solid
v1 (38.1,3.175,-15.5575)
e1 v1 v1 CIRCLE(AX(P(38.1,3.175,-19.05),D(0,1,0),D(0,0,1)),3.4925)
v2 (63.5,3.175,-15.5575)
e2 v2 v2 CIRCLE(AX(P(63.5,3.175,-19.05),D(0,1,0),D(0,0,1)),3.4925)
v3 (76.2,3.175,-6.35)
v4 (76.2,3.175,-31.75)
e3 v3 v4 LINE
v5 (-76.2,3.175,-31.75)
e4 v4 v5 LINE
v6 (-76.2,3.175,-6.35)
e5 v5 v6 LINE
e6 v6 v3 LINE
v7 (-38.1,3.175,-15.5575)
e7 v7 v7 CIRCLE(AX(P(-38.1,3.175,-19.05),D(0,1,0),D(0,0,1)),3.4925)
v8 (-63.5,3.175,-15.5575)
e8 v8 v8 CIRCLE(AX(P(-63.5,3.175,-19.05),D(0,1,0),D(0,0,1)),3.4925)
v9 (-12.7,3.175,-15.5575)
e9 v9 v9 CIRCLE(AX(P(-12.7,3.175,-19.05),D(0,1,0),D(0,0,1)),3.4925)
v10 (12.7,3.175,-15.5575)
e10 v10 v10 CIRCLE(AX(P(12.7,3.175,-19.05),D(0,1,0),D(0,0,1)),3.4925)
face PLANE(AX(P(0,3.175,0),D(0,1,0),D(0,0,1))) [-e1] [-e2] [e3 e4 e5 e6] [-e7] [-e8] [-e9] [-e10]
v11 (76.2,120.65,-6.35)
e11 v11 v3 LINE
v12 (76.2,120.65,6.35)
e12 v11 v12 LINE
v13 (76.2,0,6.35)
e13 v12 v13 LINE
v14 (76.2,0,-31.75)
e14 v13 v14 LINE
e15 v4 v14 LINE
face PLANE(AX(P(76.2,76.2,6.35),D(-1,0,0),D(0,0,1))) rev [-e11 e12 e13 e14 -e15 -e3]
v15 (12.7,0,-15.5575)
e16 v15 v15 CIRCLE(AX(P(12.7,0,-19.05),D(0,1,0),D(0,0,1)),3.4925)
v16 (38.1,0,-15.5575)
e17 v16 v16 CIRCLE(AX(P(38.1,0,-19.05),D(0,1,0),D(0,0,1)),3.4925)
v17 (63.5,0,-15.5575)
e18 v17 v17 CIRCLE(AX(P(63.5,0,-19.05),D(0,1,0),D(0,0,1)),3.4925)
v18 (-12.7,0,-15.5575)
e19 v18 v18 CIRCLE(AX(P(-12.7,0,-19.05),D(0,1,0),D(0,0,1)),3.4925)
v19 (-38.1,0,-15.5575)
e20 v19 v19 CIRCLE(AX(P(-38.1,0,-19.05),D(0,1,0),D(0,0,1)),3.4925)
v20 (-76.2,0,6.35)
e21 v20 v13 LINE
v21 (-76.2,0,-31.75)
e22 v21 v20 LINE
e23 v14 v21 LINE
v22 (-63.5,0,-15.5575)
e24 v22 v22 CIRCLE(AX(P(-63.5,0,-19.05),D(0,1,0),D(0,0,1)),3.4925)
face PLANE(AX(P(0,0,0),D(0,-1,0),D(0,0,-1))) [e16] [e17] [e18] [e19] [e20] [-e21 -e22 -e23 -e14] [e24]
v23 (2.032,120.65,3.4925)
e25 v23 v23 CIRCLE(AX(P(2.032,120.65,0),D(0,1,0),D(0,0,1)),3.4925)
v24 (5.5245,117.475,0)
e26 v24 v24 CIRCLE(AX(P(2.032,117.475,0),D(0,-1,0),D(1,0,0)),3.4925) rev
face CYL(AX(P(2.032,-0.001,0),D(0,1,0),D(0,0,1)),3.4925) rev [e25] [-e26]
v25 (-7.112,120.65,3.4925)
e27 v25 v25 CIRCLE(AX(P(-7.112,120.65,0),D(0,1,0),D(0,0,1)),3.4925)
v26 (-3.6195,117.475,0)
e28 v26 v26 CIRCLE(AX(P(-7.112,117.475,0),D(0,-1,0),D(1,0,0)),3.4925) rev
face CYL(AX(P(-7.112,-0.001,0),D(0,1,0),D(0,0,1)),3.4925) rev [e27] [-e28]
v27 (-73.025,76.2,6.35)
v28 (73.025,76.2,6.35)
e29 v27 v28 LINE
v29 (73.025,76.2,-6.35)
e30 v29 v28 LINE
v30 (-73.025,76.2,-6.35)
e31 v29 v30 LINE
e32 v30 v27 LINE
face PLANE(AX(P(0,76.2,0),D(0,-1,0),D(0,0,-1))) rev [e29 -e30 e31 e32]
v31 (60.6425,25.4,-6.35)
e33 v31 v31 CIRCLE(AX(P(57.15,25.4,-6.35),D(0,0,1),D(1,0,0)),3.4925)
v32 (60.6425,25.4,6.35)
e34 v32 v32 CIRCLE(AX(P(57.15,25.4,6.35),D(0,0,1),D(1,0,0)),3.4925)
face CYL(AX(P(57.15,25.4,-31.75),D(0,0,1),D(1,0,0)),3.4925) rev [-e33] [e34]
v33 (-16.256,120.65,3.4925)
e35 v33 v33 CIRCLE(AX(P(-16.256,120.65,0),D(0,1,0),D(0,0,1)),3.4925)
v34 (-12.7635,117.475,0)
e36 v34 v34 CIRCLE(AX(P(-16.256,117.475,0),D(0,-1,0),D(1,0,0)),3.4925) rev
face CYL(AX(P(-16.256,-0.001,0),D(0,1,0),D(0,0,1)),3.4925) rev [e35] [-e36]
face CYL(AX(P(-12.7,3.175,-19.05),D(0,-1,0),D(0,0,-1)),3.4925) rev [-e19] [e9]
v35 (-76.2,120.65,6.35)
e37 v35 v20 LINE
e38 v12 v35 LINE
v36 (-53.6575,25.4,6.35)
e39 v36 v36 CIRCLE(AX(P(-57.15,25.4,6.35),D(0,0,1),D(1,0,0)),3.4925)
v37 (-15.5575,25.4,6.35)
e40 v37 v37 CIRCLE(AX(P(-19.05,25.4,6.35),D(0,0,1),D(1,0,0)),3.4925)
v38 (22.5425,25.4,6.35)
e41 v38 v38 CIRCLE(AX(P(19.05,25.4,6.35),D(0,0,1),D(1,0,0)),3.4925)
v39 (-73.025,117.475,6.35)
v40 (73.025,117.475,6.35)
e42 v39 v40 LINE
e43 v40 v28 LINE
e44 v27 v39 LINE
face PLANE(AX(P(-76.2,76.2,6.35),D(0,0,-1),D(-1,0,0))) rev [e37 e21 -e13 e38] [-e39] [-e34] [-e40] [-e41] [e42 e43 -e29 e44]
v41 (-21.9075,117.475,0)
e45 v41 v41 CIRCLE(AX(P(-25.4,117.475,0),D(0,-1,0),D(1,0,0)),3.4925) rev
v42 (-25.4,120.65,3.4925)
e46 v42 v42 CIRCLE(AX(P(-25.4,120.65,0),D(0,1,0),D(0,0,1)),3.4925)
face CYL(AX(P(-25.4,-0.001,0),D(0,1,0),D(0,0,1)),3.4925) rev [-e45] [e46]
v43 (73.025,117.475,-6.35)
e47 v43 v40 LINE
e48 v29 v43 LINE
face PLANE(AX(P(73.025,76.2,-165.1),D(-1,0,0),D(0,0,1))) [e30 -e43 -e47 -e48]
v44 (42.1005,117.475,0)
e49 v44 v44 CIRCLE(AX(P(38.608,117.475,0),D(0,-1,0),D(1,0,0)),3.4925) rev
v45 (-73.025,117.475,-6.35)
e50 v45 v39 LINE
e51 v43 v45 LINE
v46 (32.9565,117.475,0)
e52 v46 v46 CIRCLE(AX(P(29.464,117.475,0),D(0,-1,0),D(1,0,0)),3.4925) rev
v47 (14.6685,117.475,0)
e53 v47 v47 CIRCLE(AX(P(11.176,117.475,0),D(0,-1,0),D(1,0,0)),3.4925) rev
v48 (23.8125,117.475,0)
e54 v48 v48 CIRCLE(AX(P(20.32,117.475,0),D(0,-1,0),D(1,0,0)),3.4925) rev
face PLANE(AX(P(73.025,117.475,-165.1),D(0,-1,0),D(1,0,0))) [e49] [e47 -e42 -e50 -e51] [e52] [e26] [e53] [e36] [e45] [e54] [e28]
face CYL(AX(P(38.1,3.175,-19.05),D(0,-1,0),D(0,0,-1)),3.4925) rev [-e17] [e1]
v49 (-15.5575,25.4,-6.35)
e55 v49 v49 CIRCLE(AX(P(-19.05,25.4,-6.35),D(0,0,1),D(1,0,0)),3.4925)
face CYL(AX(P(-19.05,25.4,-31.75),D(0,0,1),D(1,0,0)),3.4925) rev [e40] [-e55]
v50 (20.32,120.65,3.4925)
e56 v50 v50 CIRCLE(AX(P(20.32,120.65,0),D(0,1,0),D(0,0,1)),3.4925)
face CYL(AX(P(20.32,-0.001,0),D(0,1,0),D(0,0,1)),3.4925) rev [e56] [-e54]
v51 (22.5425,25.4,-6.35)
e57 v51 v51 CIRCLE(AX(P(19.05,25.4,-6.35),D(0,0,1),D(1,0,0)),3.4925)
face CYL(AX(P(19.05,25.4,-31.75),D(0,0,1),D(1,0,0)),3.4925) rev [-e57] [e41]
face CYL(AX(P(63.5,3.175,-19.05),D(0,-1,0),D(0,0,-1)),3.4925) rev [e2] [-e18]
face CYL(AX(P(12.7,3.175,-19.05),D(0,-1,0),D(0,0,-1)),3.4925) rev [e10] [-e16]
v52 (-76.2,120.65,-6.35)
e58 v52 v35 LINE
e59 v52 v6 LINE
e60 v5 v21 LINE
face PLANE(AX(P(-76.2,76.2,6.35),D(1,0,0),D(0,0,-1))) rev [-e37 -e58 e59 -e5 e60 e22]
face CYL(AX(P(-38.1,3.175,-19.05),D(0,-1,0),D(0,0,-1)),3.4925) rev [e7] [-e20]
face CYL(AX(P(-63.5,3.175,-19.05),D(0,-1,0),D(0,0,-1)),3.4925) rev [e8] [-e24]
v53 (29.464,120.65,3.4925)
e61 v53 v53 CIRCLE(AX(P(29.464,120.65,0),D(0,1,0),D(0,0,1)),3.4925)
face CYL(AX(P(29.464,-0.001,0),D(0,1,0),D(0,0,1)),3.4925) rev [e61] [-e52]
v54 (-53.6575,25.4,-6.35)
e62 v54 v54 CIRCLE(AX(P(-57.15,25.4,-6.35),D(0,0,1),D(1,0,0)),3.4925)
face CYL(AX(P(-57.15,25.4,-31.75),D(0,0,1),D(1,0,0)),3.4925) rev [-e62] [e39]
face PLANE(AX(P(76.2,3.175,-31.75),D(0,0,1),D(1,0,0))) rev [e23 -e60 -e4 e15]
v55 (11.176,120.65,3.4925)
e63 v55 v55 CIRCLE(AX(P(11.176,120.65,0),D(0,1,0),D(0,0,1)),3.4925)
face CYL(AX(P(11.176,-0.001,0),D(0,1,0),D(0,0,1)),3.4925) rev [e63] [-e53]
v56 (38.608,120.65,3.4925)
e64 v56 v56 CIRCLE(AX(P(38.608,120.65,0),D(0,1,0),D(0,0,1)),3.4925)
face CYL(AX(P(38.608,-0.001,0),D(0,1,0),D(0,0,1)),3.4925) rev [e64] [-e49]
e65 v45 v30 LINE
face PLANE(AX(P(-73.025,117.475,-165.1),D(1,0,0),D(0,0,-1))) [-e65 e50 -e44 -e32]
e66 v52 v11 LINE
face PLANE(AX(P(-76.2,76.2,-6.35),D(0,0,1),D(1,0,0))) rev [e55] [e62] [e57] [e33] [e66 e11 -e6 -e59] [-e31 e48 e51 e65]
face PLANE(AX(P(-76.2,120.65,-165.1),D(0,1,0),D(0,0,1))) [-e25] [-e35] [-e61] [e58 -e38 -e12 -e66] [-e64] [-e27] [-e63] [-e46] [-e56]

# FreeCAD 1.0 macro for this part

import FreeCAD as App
import Part
import Sketcher

V = App.Vector
Q = App.Units.Quantity


def add_polygon(sketch, points):
    """Adds a closed chain of lines whose ends are joined by coincident constraints."""
    first, n = sketch.GeometryCount, len(points)
    for a, b in zip(points, points[1:] + points[:1]):
        sketch.addGeometry(Part.LineSegment(App.Vector(*a, 0), App.Vector(*b, 0)), False)
    for i in range(n):
        sketch.addConstraint(Sketcher.Constraint("Coincident", first + i, 2, first + (i + 1) % n, 1))

doc = App.newDocument("Part")
body = doc.addObject("PartDesign::Body", "Body")

# Sketch on XZ plane
sketch1 = body.newObject("Sketcher::SketchObject", "Sketch")
sketch1.AttachmentSupport = (doc.getObject("XZ_Plane"), [""])
sketch1.MapMode = "FlatFace"
add_polygon(sketch1, [(-76, -6), (-76, 6), (76, 6), (76, -6)])  # lines 0-3
sketch1.addConstraint(Sketcher.Constraint("Vertical", 0))
sketch1.addConstraint(Sketcher.Constraint("Horizontal", 1))
sketch1.addConstraint(Sketcher.Constraint("Vertical", 2))
sketch1.addConstraint(Sketcher.Constraint("Horizontal", 3))
sketch1.addConstraint(Sketcher.Constraint("Symmetric", 0, 2, 2, 2, -1, 1))
sketch1.addConstraint(Sketcher.Constraint("DistanceX", 1, 1, 1, 2, Q("6 in")))
sketch1.addConstraint(Sketcher.Constraint("DistanceY", 0, 1, 0, 2, Q("0.5 in")))
pad1 = body.newObject("PartDesign::Pad", "Pad")
pad1.Profile = sketch1
pad1.Length = Q("3 in")
pad1.Reversed = True

# Sketch on XZ plane
sketch2 = body.newObject("Sketcher::SketchObject", "Sketch001")
sketch2.AttachmentSupport = (doc.getObject("XZ_Plane"), [""])
sketch2.MapMode = "FlatFace"
add_polygon(sketch2, [(-76.2, -6.3), (76.2, -6.3), (76.2, -31.8), (-76.2, -31.8)])  # lines 0-3
sketch2.addGeometry(Part.Circle(V(-63.5, -19.1, 0), V(0, 0, 1), 3.5), False)  # 4
sketch2.addGeometry(Part.Circle(V(-38.1, -19.1, 0), V(0, 0, 1), 3.5), False)  # 5
sketch2.addGeometry(Part.Circle(V(-12.7, -19.1, 0), V(0, 0, 1), 3.5), False)  # 6
sketch2.addGeometry(Part.Circle(V(12.7, -19.1, 0), V(0, 0, 1), 3.5), False)  # 7
sketch2.addGeometry(Part.Circle(V(38.1, -19.1, 0), V(0, 0, 1), 3.5), False)  # 8
sketch2.addGeometry(Part.Circle(V(63.5, -19.1, 0), V(0, 0, 1), 3.5), False)  # 9
sketch2.addConstraint(Sketcher.Constraint("Horizontal", 0))
sketch2.addConstraint(Sketcher.Constraint("Vertical", 1))
sketch2.addConstraint(Sketcher.Constraint("Horizontal", 2))
sketch2.addConstraint(Sketcher.Constraint("Vertical", 3))
sketch2.addConstraint(Sketcher.Constraint("Equal", 4, 5))
sketch2.addConstraint(Sketcher.Constraint("Equal", 5, 6))
sketch2.addConstraint(Sketcher.Constraint("Equal", 6, 7))
sketch2.addConstraint(Sketcher.Constraint("Equal", 7, 8))
sketch2.addConstraint(Sketcher.Constraint("Equal", 8, 9))
sketch2.addConstraint(Sketcher.Constraint("Symmetric", 6, 3, 7, 3, -2))
sketch2.addConstraint(Sketcher.Constraint("Symmetric", 5, 3, 8, 3, -2))
sketch2.addConstraint(Sketcher.Constraint("Symmetric", 4, 3, 9, 3, -2))
sketch2.addConstraint(Sketcher.Constraint("Horizontal", 4, 3, 5, 3))
sketch2.addConstraint(Sketcher.Constraint("Horizontal", 5, 3, 6, 3))
sketch2.addConstraint(Sketcher.Constraint("DistanceX", 0, 1, 0, 2, Q("6 in")))
sketch2.addConstraint(Sketcher.Constraint("DistanceY", 1, 2, 1, 1, Q("1 in")))
sketch2.addConstraint(Sketcher.Constraint("Diameter", 4, Q("0.275 in")))
sketch2.addConstraint(Sketcher.Constraint("DistanceX", -1, 1, 0, 2, Q("3 in")))
sketch2.addConstraint(Sketcher.Constraint("DistanceX", 4, 3, 5, 3, Q("1 in")))
sketch2.addConstraint(Sketcher.Constraint("DistanceX", 5, 3, 6, 3, Q("1 in")))
sketch2.addConstraint(Sketcher.Constraint("DistanceX", 6, 3, 7, 3, Q("1 in")))
sketch2.addConstraint(Sketcher.Constraint("DistanceY", 9, 3, 0, 2, Q("0.5 in")))
sketch2.addConstraint(Sketcher.Constraint("DistanceY", 4, 3, -1, 1, Q("0.75 in")))
pad2 = body.newObject("PartDesign::Pad", "Pad001")
pad2.Profile = sketch2
pad2.Length = Q("0.125 in")
pad2.Reversed = True

# Sketch on XY plane
sketch3 = body.newObject("Sketcher::SketchObject", "Sketch002")
sketch3.AttachmentSupport = (doc.getObject("XY_Plane"), [""])
sketch3.MapMode = "FlatFace"
sketch3.AttachmentOffset = App.Placement(V(0, 0, 0.25 * 25.4), App.Rotation())
add_polygon(sketch3, [(-76.2, 120.7), (-76.2, 76.2), (-73, 76.2), (-73, 117.5), (73, 117.5), (73, 76.2), (76.2, 76.2), (76.2, 120.7)])  # lines 0-7
sketch3.addConstraint(Sketcher.Constraint("Vertical", 0))
sketch3.addConstraint(Sketcher.Constraint("Horizontal", 1))
sketch3.addConstraint(Sketcher.Constraint("Vertical", 2))
sketch3.addConstraint(Sketcher.Constraint("Horizontal", 3))
sketch3.addConstraint(Sketcher.Constraint("Vertical", 4))
sketch3.addConstraint(Sketcher.Constraint("Horizontal", 5))
sketch3.addConstraint(Sketcher.Constraint("Vertical", 6))
sketch3.addConstraint(Sketcher.Constraint("Horizontal", 7))
sketch3.addConstraint(Sketcher.Constraint("Symmetric", 1, 2, 4, 2, -2))
sketch3.addConstraint(Sketcher.Constraint("Equal", 1, 5))
sketch3.addConstraint(Sketcher.Constraint("DistanceX", 7, 2, 7, 1, Q("6 in")))
sketch3.addConstraint(Sketcher.Constraint("DistanceY", -1, 1, 0, 2, Q("3 in")))
sketch3.addConstraint(Sketcher.Constraint("DistanceX", 3, 1, 3, 2, Q("5.75 in")))
sketch3.addConstraint(Sketcher.Constraint("DistanceY", 0, 2, 0, 1, Q("1.75 in")))
sketch3.addConstraint(Sketcher.Constraint("DistanceY", 2, 1, 2, 2, Q("1.625 in")))
pad3 = body.newObject("PartDesign::Pad", "Pad002")
pad3.Profile = sketch3
pad3.Length = Q("0.5 in")
pad3.Reversed = True

# Sketch on XZ plane
sketch4 = body.newObject("Sketcher::SketchObject", "Sketch003")
sketch4.AttachmentSupport = (doc.getObject("XZ_Plane"), [""])
sketch4.MapMode = "FlatFace"
sketch4.AttachmentOffset = App.Placement(V(0, 0, -4.75 * 25.4), App.Rotation())
sketch4.addGeometry(Part.Circle(V(-25.4, 0, 0), V(0, 0, 1), 3.5), False)
sketch4.addConstraint(Sketcher.Constraint("PointOnObject", 0, 3, -1))
sketch4.addConstraint(Sketcher.Constraint("Diameter", 0, Q("0.275 in")))
sketch4.addConstraint(Sketcher.Constraint("DistanceX", 0, 3, -1, 1, Q("1 in")))
pocket1 = body.newObject("PartDesign::Pocket", "Pocket")
pocket1.Profile = sketch4
pocket1.Type = "UpToFirst"
pocket1.Reversed = True

# Sketch on XZ plane
sketch5 = body.newObject("Sketcher::SketchObject", "Sketch004")
sketch5.AttachmentSupport = (doc.getObject("XZ_Plane"), [""])
sketch5.MapMode = "FlatFace"
sketch5.AttachmentOffset = App.Placement(V(0, 0, -4.75 * 25.4), App.Rotation())
sketch5.addGeometry(Part.Circle(V(-16.3, 0, 0), V(0, 0, 1), 3.5), False)
sketch5.addConstraint(Sketcher.Constraint("PointOnObject", 0, 3, -1))
sketch5.addConstraint(Sketcher.Constraint("Diameter", 0, Q("0.275 in")))
sketch5.addConstraint(Sketcher.Constraint("DistanceX", 0, 3, -1, 1, Q("0.64 in")))
pocket2 = body.newObject("PartDesign::Pocket", "Pocket001")
pocket2.Profile = sketch5
pocket2.Type = "UpToFirst"
pocket2.Reversed = True

# Sketch on XZ plane
sketch6 = body.newObject("Sketcher::SketchObject", "Sketch005")
sketch6.AttachmentSupport = (doc.getObject("XZ_Plane"), [""])
sketch6.MapMode = "FlatFace"
sketch6.AttachmentOffset = App.Placement(V(0, 0, -4.75 * 25.4), App.Rotation())
sketch6.addGeometry(Part.Circle(V(-7.1, 0, 0), V(0, 0, 1), 3.5), False)
sketch6.addConstraint(Sketcher.Constraint("PointOnObject", 0, 3, -1))
sketch6.addConstraint(Sketcher.Constraint("Diameter", 0, Q("0.275 in")))
sketch6.addConstraint(Sketcher.Constraint("DistanceX", 0, 3, -1, 1, Q("0.28 in")))
pocket3 = body.newObject("PartDesign::Pocket", "Pocket002")
pocket3.Profile = sketch6
pocket3.Type = "UpToFirst"
pocket3.Reversed = True

# Sketch on XZ plane
sketch7 = body.newObject("Sketcher::SketchObject", "Sketch006")
sketch7.AttachmentSupport = (doc.getObject("XZ_Plane"), [""])
sketch7.MapMode = "FlatFace"
sketch7.AttachmentOffset = App.Placement(V(0, 0, -4.75 * 25.4), App.Rotation())
sketch7.addGeometry(Part.Circle(V(2, 0, 0), V(0, 0, 1), 3.5), False)
sketch7.addConstraint(Sketcher.Constraint("PointOnObject", 0, 3, -1))
sketch7.addConstraint(Sketcher.Constraint("Diameter", 0, Q("0.275 in")))
sketch7.addConstraint(Sketcher.Constraint("DistanceX", -1, 1, 0, 3, Q("0.08 in")))
pocket4 = body.newObject("PartDesign::Pocket", "Pocket003")
pocket4.Profile = sketch7
pocket4.Type = "UpToFirst"
pocket4.Reversed = True

# Sketch on XZ plane
sketch8 = body.newObject("Sketcher::SketchObject", "Sketch007")
sketch8.AttachmentSupport = (doc.getObject("XZ_Plane"), [""])
sketch8.MapMode = "FlatFace"
sketch8.AttachmentOffset = App.Placement(V(0, 0, -4.75 * 25.4), App.Rotation())
sketch8.addGeometry(Part.Circle(V(11.2, 0, 0), V(0, 0, 1), 3.5), False)
sketch8.addConstraint(Sketcher.Constraint("PointOnObject", 0, 3, -1))
sketch8.addConstraint(Sketcher.Constraint("Diameter", 0, Q("0.275 in")))
sketch8.addConstraint(Sketcher.Constraint("DistanceX", -1, 1, 0, 3, Q("0.44 in")))
pocket5 = body.newObject("PartDesign::Pocket", "Pocket004")
pocket5.Profile = sketch8
pocket5.Type = "UpToFirst"
pocket5.Reversed = True

# Sketch on XZ plane
sketch9 = body.newObject("Sketcher::SketchObject", "Sketch008")
sketch9.AttachmentSupport = (doc.getObject("XZ_Plane"), [""])
sketch9.MapMode = "FlatFace"
sketch9.AttachmentOffset = App.Placement(V(0, 0, -4.75 * 25.4), App.Rotation())
sketch9.addGeometry(Part.Circle(V(20.3, 0, 0), V(0, 0, 1), 3.5), False)
sketch9.addConstraint(Sketcher.Constraint("PointOnObject", 0, 3, -1))
sketch9.addConstraint(Sketcher.Constraint("Diameter", 0, Q("0.275 in")))
sketch9.addConstraint(Sketcher.Constraint("DistanceX", -1, 1, 0, 3, Q("0.8 in")))
pocket6 = body.newObject("PartDesign::Pocket", "Pocket005")
pocket6.Profile = sketch9
pocket6.Type = "UpToFirst"
pocket6.Reversed = True

# Sketch on XZ plane
sketch10 = body.newObject("Sketcher::SketchObject", "Sketch009")
sketch10.AttachmentSupport = (doc.getObject("XZ_Plane"), [""])
sketch10.MapMode = "FlatFace"
sketch10.AttachmentOffset = App.Placement(V(0, 0, -4.75 * 25.4), App.Rotation())
sketch10.addGeometry(Part.Circle(V(29.5, 0, 0), V(0, 0, 1), 3.5), False)
sketch10.addConstraint(Sketcher.Constraint("PointOnObject", 0, 3, -1))
sketch10.addConstraint(Sketcher.Constraint("Diameter", 0, Q("0.275 in")))
sketch10.addConstraint(Sketcher.Constraint("DistanceX", -1, 1, 0, 3, Q("1.16 in")))
pocket7 = body.newObject("PartDesign::Pocket", "Pocket006")
pocket7.Profile = sketch10
pocket7.Type = "UpToFirst"
pocket7.Reversed = True

# Sketch on XZ plane
sketch11 = body.newObject("Sketcher::SketchObject", "Sketch010")
sketch11.AttachmentSupport = (doc.getObject("XZ_Plane"), [""])
sketch11.MapMode = "FlatFace"
sketch11.AttachmentOffset = App.Placement(V(0, 0, -4.75 * 25.4), App.Rotation())
sketch11.addGeometry(Part.Circle(V(38.6, 0, 0), V(0, 0, 1), 3.5), False)
sketch11.addConstraint(Sketcher.Constraint("PointOnObject", 0, 3, -1))
sketch11.addConstraint(Sketcher.Constraint("Diameter", 0, Q("0.275 in")))
sketch11.addConstraint(Sketcher.Constraint("DistanceX", -1, 1, 0, 3, Q("1.52 in")))
pocket8 = body.newObject("PartDesign::Pocket", "Pocket007")
pocket8.Profile = sketch11
pocket8.Type = "UpToFirst"
pocket8.Reversed = True

# Sketch on XY plane
sketch12 = body.newObject("Sketcher::SketchObject", "Sketch011")
sketch12.AttachmentSupport = (doc.getObject("XY_Plane"), [""])
sketch12.MapMode = "FlatFace"
sketch12.addGeometry(Part.Circle(V(-57.1, 25.4, 0), V(0, 0, 1), 3.5), False)
sketch12.addGeometry(Part.Circle(V(-19.1, 25.4, 0), V(0, 0, 1), 3.5), False)
sketch12.addGeometry(Part.Circle(V(19.1, 25.4, 0), V(0, 0, 1), 3.5), False)
sketch12.addGeometry(Part.Circle(V(57.1, 25.4, 0), V(0, 0, 1), 3.5), False)
sketch12.addConstraint(Sketcher.Constraint("Equal", 0, 1))
sketch12.addConstraint(Sketcher.Constraint("Equal", 1, 2))
sketch12.addConstraint(Sketcher.Constraint("Equal", 2, 3))
sketch12.addConstraint(Sketcher.Constraint("Symmetric", 1, 3, 2, 3, -2))
sketch12.addConstraint(Sketcher.Constraint("Symmetric", 0, 3, 3, 3, -2))
sketch12.addConstraint(Sketcher.Constraint("Horizontal", 0, 3, 1, 3))
sketch12.addConstraint(Sketcher.Constraint("Diameter", 0, Q("0.275 in")))
sketch12.addConstraint(Sketcher.Constraint("DistanceY", -1, 1, 0, 3, Q("1 in")))
sketch12.addConstraint(Sketcher.Constraint("DistanceX", 0, 3, 2, 3, Q("3 in")))
sketch12.addConstraint(Sketcher.Constraint("DistanceX", 0, 3, 1, 3, Q("1.5 in")))
pocket9 = body.newObject("PartDesign::Pocket", "Pocket008")
pocket9.Profile = sketch12
pocket9.Type = "ThroughAll"
pocket9.Midplane = True

doc.recompute()
